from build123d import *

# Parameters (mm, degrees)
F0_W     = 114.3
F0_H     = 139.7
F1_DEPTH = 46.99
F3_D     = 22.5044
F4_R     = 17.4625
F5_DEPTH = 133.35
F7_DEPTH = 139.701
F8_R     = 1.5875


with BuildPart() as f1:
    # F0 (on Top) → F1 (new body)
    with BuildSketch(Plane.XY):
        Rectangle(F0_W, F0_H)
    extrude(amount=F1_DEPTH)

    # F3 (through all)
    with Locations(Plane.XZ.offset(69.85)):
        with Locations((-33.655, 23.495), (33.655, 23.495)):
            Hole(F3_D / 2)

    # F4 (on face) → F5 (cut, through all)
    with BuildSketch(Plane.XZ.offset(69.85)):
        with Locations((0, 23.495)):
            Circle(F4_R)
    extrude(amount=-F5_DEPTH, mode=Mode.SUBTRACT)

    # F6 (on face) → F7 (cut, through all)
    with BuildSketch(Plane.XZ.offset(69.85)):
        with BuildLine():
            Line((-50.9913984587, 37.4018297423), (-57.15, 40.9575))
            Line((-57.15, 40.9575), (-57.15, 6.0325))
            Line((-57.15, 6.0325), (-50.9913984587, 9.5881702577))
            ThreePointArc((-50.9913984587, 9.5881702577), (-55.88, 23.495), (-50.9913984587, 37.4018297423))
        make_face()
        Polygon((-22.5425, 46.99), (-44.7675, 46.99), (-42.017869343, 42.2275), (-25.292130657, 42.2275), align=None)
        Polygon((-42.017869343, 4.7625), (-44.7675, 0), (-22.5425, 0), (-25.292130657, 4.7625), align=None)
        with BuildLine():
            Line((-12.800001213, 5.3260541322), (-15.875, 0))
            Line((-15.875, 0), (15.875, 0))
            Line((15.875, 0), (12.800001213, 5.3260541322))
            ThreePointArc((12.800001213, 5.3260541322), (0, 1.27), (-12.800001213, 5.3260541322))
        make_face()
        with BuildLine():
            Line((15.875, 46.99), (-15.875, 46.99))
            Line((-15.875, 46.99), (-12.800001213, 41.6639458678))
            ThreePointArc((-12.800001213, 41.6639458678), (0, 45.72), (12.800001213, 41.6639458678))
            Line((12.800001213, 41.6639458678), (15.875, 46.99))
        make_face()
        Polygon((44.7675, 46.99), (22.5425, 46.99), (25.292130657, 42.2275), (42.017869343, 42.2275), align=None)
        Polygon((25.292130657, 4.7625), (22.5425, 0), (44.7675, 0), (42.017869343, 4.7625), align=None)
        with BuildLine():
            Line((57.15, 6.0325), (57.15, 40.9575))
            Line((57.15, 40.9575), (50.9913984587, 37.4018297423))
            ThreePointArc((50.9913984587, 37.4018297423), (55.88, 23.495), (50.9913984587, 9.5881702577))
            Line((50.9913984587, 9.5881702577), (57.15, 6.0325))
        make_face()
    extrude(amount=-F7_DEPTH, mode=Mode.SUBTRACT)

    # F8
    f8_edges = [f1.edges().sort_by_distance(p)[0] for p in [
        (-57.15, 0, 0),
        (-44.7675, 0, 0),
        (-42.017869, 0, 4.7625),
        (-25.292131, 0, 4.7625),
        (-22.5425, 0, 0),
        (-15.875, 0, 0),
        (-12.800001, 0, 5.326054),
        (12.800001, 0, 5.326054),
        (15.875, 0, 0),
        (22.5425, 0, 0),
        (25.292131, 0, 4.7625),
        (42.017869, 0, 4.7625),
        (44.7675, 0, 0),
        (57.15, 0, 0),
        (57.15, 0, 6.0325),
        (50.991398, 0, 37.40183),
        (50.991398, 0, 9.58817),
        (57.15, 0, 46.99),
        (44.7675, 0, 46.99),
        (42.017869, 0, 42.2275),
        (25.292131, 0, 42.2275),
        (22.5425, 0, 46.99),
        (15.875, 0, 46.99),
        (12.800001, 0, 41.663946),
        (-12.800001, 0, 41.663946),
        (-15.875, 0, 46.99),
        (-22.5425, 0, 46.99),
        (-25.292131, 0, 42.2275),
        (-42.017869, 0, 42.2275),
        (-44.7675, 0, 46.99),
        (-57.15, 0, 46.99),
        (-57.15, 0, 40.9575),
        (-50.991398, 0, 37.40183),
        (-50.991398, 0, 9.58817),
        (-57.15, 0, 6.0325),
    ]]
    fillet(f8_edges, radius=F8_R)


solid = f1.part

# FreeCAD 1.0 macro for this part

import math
import FreeCAD as App
import Part
import Sketcher

V = App.Vector
Q = App.Units.Quantity


def edges_at(feature, points):
    """Names of the edges that pass closest to the given points."""
    edges = feature.Shape.Edges
    near = lambda p: min(range(len(edges)), key=lambda i: edges[i].distToShape(Part.Vertex(*p))[0])
    return sorted({f"Edge{near(p) + 1}" for p in points})


def add_polygon(sketch, points):
    """Adds a closed chain of lines whose ends are joined by coincident constraints."""
    first, n = sketch.GeometryCount, len(points)
    for a, b in zip(points, points[1:] + points[:1]):
        sketch.addGeometry(Part.LineSegment(App.Vector(*a, 0), App.Vector(*b, 0)), False)
    for i in range(n):
        sketch.addConstraint(Sketcher.Constraint("Coincident", first + i, 2, first + (i + 1) % n, 1))

doc = App.newDocument("Part")
body = doc.addObject("PartDesign::Body", "Body")

sketch1 = body.newObject("Sketcher::SketchObject", "Sketch")
sketch1.AttachmentSupport = (doc.getObject("XY_Plane"), [""])
sketch1.MapMode = "FlatFace"
add_polygon(sketch1, [(-57, 70), (-57, -70), (57, -70), (57, 70)])
sketch1.addConstraint([
    Sketcher.Constraint("Vertical", 0),
    Sketcher.Constraint("Horizontal", 1),
    Sketcher.Constraint("Vertical", 2),
    Sketcher.Constraint("Horizontal", 3),
    Sketcher.Constraint("Symmetric", 0, 2, 2, 2, -1, 1),
    Sketcher.Constraint("DistanceX", 1, 1, 1, 2, Q("4.5 in")),
    Sketcher.Constraint("DistanceY", 0, 2, 0, 1, Q("5.5 in")),
])
pad1 = body.newObject("PartDesign::Pad", "Pad")
pad1.Profile = sketch1
pad1.Length = Q("1.85 in")

sketch2 = body.newObject("Sketcher::SketchObject", "Sketch001")
sketch2.AttachmentSupport = (doc.getObject("XZ_Plane"), [""])
sketch2.MapMode = "FlatFace"
sketch2.AttachmentOffset = App.Placement(V(0, 0, 2.75 * 25.4), App.Rotation())
sketch2.addGeometry([
    Part.Circle(V(-34, 23, 0), V(0, 0, 1), 11),
    Part.Circle(V(34, 23, 0), V(0, 0, 1), 11),
], False)
sketch2.addConstraint([
    Sketcher.Constraint("Equal", 0, 1),
    Sketcher.Constraint("Symmetric", 0, 3, 1, 3, -2),
    Sketcher.Constraint("Diameter", 0, Q("0.886 in")),
    Sketcher.Constraint("DistanceX", 0, 3, 1, 3, Q("2.65 in")),
    Sketcher.Constraint("DistanceY", -1, 1, 0, 3, Q("0.925 in")),
])
doc.recompute()
hole = body.newObject("PartDesign::Hole", "Hole")
hole.Profile = sketch2
hole.ThreadType = "None"
hole.Diameter = Q("0.886 in")
hole.DepthType = "ThroughAll"

sketch3 = body.newObject("Sketcher::SketchObject", "Sketch002")
sketch3.AttachmentSupport = (doc.getObject("XZ_Plane"), [""])
sketch3.MapMode = "FlatFace"
sketch3.AttachmentOffset = App.Placement(V(0, 0, 2.75 * 25.4), App.Rotation())
sketch3.addGeometry(Part.Circle(V(0, 23, 0), V(0, 0, 1), 17), False)
sketch3.addConstraint([
    Sketcher.Constraint("PointOnObject", 0, 3, -2),
    Sketcher.Constraint("Diameter", 0, Q("1.375 in")),
    Sketcher.Constraint("DistanceY", -1, 1, 0, 3, Q("0.925 in")),
])
pocket1 = body.newObject("PartDesign::Pocket", "Pocket")
pocket1.Profile = sketch3
pocket1.Length = Q("5.25 in")

sketch4 = body.newObject("Sketcher::SketchObject", "Sketch003")
sketch4.AttachmentSupport = (doc.getObject("XZ_Plane"), [""])
sketch4.MapMode = "FlatFace"
sketch4.AttachmentOffset = App.Placement(V(0, 0, 2.75 * 25.4), App.Rotation())
sketch4.addGeometry(Part.LineSegment(V(-51, 37, 0), V(-57, 41, 0)), False)
sketch4.addGeometry(Part.LineSegment(V(-57, 41, 0), V(-57, 6, 0)), False)
sketch4.addGeometry(Part.LineSegment(V(-57, 6, 0), V(-51, 10, 0)), False)
sketch4.addGeometry(Part.ArcOfCircle(Part.Circle(V(-34, 23, 0), V(0, 0, 1), 22), math.radians(141), math.radians(219)), False)
add_polygon(sketch4, [(-23, 47), (-45, 47), (-42, 42), (-25, 42)])
add_polygon(sketch4, [(-42, 5), (-45, 0), (-23, 0), (-25, 5)])
sketch4.addGeometry(Part.LineSegment(V(-13, 5, 0), V(-16, 0, 0)), False)
sketch4.addGeometry(Part.LineSegment(V(-16, 0, 0), V(16, 0, 0)), False)
sketch4.addGeometry(Part.LineSegment(V(16, 0, 0), V(13, 5, 0)), False)
sketch4.addGeometry(Part.ArcOfCircle(Part.Circle(V(0, 23, 0), V(0, 0, 1), 22), math.radians(-125), math.radians(-55)), False)
sketch4.addGeometry(Part.LineSegment(V(16, 47, 0), V(-16, 47, 0)), False)
sketch4.addGeometry(Part.LineSegment(V(-16, 47, 0), V(-13, 42, 0)), False)
sketch4.addGeometry(Part.ArcOfCircle(Part.Circle(V(0, 23, 0), V(0, 0, 1), 22), math.radians(55), math.radians(125)), False)
sketch4.addGeometry(Part.LineSegment(V(13, 42, 0), V(16, 47, 0)), False)
add_polygon(sketch4, [(45, 47), (23, 47), (25, 42), (42, 42)])
add_polygon(sketch4, [(25, 5), (23, 0), (45, 0), (42, 5)])
sketch4.addGeometry(Part.LineSegment(V(57, 6, 0), V(57, 41, 0)), False)
sketch4.addGeometry(Part.LineSegment(V(57, 41, 0), V(51, 37, 0)), False)
sketch4.addGeometry(Part.ArcOfCircle(Part.Circle(V(34, 23, 0), V(0, 0, 1), 22), math.radians(-39), math.radians(39)), False)
sketch4.addGeometry(Part.LineSegment(V(51, 10, 0), V(57, 6, 0)), False)
sketch4.addConstraint([
    Sketcher.Constraint("Coincident", 0, 2, 1, 1),
    Sketcher.Constraint("Coincident", 1, 2, 2, 1),
    Sketcher.Constraint("Coincident", 2, 2, 3, 2),
    Sketcher.Constraint("Coincident", 3, 1, 0, 1),
    Sketcher.Constraint("Coincident", 12, 2, 13, 1),
    Sketcher.Constraint("Coincident", 13, 2, 14, 1),
    Sketcher.Constraint("Coincident", 14, 2, 15, 2),
    Sketcher.Constraint("Coincident", 15, 1, 12, 1),
    Sketcher.Constraint("Coincident", 16, 2, 17, 1),
    Sketcher.Constraint("Coincident", 17, 2, 18, 2),
    Sketcher.Constraint("Coincident", 18, 1, 19, 1),
    Sketcher.Constraint("Coincident", 19, 2, 16, 1),
    Sketcher.Constraint("Coincident", 28, 2, 29, 1),
    Sketcher.Constraint("Coincident", 29, 2, 30, 2),
    Sketcher.Constraint("Coincident", 30, 1, 31, 1),
    Sketcher.Constraint("Coincident", 31, 2, 28, 1),
    Sketcher.Constraint("Vertical", 1),
    Sketcher.Constraint("Horizontal", 4),
    Sketcher.Constraint("Horizontal", 6),
    Sketcher.Constraint("Horizontal", 9),
    Sketcher.Constraint("Horizontal", 11),
    Sketcher.Constraint("Horizontal", 13),
    Sketcher.Constraint("Horizontal", 16),
    Sketcher.Constraint("Horizontal", 20),
    Sketcher.Constraint("Horizontal", 22),
    Sketcher.Constraint("Horizontal", 25),
    Sketcher.Constraint("Horizontal", 27),
    Sketcher.Constraint("Vertical", 28),
    Sketcher.Constraint("Coincident", 18, 3, 15, 3),
    Sketcher.Constraint("Equal", 3, 15),
    Sketcher.Constraint("Equal", 15, 18),
    Sketcher.Constraint("Equal", 18, 30),
    Sketcher.Constraint("Symmetric", 12, 2, 13, 2, -1, 1),
    Sketcher.Constraint("Symmetric", 9, 2, 24, 2, -1, 1),
    Sketcher.Constraint("Symmetric", 3, 3, 30, 3, -2),
    Sketcher.Constraint("Symmetric", 14, 2, 15, 1, -2),
    Sketcher.Constraint("Symmetric", 7, 2, 20, 2, -2),
    Sketcher.Constraint("Symmetric", 6, 2, 21, 2, -2),
    Sketcher.Constraint("Symmetric", 8, 2, 25, 2, -2),
    Sketcher.Constraint("Symmetric", 11, 2, 26, 2, -2),
    Sketcher.Constraint("Symmetric", 0, 2, 28, 2, -2),
    Sketcher.Constraint("Perpendicular", 2, 5),
    Sketcher.Constraint("Perpendicular", 0, 7),
    Sketcher.Constraint("Parallel", 7, 8),
    Sketcher.Constraint("Parallel", 5, 10),
    Sketcher.Constraint("Parallel", 8, 12),
    Sketcher.Constraint("Parallel", 10, 14),
    Sketcher.Constraint("Parallel", 14, 17),
    Sketcher.Constraint("Parallel", 12, 19),
    Sketcher.Constraint("Parallel", 19, 23),
    Sketcher.Constraint("Parallel", 23, 24),
    Sketcher.Constraint("Perpendicular", 26, 29),
    Sketcher.Constraint("Perpendicular", 24, 31),
    Sketcher.Constraint("Horizontal", 3, 3, 15, 3),
    Sketcher.Constraint("Horizontal", 7, 2, 16, 2),
    Sketcher.Constraint("Horizontal", 17, 2, 18, 1),
    Sketcher.Constraint("Horizontal", 2, 2, 30, 1),
    Sketcher.Constraint("Vertical", 2, 2, 3, 1),
    Sketcher.Constraint("Vertical", 4, 2, 8, 2),
    Sketcher.Constraint("Vertical", 7, 2, 9, 2),
    Sketcher.Constraint("Vertical", 6, 2, 10, 2),
    Sketcher.Constraint("Vertical", 12, 2, 16, 2),
    Sketcher.Constraint("Vertical", 15, 1, 17, 2),
    Sketcher.Constraint("Vertical", 23, 2, 25, 2),
    Sketcher.Constraint("Angle", 0, Q("150 deg")),
    Sketcher.Constraint("Radius", 3, Q("0.875 in")),
    Sketcher.Constraint("DistanceX", 13, 1, 13, 2, Q("1.25 in")),
    Sketcher.Constraint("DistanceX", 13, 2, 30, 3, Q("0.7 in")),
    Sketcher.Constraint("DistanceX", 4, 2, 4, 1, Q("0.875 in")),
    Sketcher.Constraint("DistanceY", 1, 2, 1, 1, Q("1.375 in")),
    Sketcher.Constraint("DistanceX", 0, 2, -1, 1, Q("2.25 in")),
    Sketcher.Constraint("DistanceY", -1, 1, 4, 2, Q("1.85 in")),
    Sketcher.Constraint("DistanceY", 0, 2, 5, 2, Q("0.05 in")),
    Sketcher.Constraint("DistanceX", 4, 2, 3, 3, Q("0.4375 in")),
])
pocket2 = body.newObject("PartDesign::Pocket", "Pocket001")
pocket2.Profile = sketch4
pocket2.Type = "ThroughAll"
doc.recompute()

fillet = body.newObject("PartDesign::Fillet", "Fillet")
fillet.Base = (pocket2, edges_at(pocket2, [
    (-57.15, 0, 0),
    (-44.767, 0, 0),
    (-42.018, 0, 4.763),
    (-25.292, 0, 4.763),
    (-22.543, 0, 0),
    (-15.875, 0, 0),
    (-12.8, 0, 5.326),
    (12.8, 0, 5.326),
    (15.875, 0, 0),
    (22.543, 0, 0),
    (25.292, 0, 4.763),
    (42.018, 0, 4.763),
    (44.767, 0, 0),
    (57.15, 0, 0),
    (57.15, 0, 6.032),
    (50.991, 0, 37.402),
    (50.991, 0, 9.588),
    (57.15, 0, 46.99),
    (44.767, 0, 46.99),
    (42.018, 0, 42.227),
    (25.292, 0, 42.227),
    (22.543, 0, 46.99),
    (15.875, 0, 46.99),
    (12.8, 0, 41.664),
    (-12.8, 0, 41.664),
    (-15.875, 0, 46.99),
    (-22.543, 0, 46.99),
    (-25.292, 0, 42.227),
    (-42.018, 0, 42.227),
    (-44.767, 0, 46.99),
    (-57.15, 0, 46.99),
    (-57.15, 0, 40.958),
    (-50.991, 0, 37.402),
    (-50.991, 0, 9.588),
    (-57.15, 0, 6.032),
]))
fillet.Radius = Q("0.0625 in")

doc.recompute()
